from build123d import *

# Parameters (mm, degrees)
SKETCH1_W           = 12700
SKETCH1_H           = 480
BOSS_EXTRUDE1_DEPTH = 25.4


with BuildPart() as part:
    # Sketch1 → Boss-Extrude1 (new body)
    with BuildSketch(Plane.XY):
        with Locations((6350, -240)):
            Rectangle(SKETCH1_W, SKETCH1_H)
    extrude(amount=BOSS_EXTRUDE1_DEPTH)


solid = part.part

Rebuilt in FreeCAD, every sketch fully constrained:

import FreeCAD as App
import Part
import Sketcher
from FreeCAD import Vector
Q = App.Units.Quantity


def add_polygon(sketch, points):
    """Adds a closed chain of lines whose ends are joined by coincident constraints."""
    first, n = sketch.GeometryCount, len(points)
    for a, b in zip(points, points[1:] + points[:1]):
        sketch.addGeometry(Part.LineSegment(App.Vector(*a, 0), App.Vector(*b, 0)), False)
    for i in range(n):
        sketch.addConstraint(Sketcher.Constraint("Coincident", first + i, 2, first + (i + 1) % n, 1))

doc = App.newDocument("Part")
body = doc.addObject("PartDesign::Body", "Body")

sketch1 = body.newObject("Sketcher::SketchObject", "Sketch")
sketch1.AttachmentSupport = (doc.getObject("XY_Plane"), [""])
sketch1.MapMode = "FlatFace"
add_polygon(sketch1, [(0, 0), (0, -480), (12700, -480), (12700, 0)])
sketch1.addConstraint([
    Sketcher.Constraint("Vertical", 0),
    Sketcher.Constraint("Horizontal", 1),
    Sketcher.Constraint("Vertical", 2),
    Sketcher.Constraint("Horizontal", 3),
    Sketcher.Constraint("Coincident", 3, 2, -1, 1),
    Sketcher.Constraint("DistanceX", 1, 1, 1, 2, Q("500 in")),
    Sketcher.Constraint("DistanceY", 0, 2, 0, 1, Q("480 mm")),
])
pad1 = body.newObject("PartDesign::Pad", "Pad")
pad1.Profile = sketch1
pad1.Length = Q("1 in")

doc.recompute()
